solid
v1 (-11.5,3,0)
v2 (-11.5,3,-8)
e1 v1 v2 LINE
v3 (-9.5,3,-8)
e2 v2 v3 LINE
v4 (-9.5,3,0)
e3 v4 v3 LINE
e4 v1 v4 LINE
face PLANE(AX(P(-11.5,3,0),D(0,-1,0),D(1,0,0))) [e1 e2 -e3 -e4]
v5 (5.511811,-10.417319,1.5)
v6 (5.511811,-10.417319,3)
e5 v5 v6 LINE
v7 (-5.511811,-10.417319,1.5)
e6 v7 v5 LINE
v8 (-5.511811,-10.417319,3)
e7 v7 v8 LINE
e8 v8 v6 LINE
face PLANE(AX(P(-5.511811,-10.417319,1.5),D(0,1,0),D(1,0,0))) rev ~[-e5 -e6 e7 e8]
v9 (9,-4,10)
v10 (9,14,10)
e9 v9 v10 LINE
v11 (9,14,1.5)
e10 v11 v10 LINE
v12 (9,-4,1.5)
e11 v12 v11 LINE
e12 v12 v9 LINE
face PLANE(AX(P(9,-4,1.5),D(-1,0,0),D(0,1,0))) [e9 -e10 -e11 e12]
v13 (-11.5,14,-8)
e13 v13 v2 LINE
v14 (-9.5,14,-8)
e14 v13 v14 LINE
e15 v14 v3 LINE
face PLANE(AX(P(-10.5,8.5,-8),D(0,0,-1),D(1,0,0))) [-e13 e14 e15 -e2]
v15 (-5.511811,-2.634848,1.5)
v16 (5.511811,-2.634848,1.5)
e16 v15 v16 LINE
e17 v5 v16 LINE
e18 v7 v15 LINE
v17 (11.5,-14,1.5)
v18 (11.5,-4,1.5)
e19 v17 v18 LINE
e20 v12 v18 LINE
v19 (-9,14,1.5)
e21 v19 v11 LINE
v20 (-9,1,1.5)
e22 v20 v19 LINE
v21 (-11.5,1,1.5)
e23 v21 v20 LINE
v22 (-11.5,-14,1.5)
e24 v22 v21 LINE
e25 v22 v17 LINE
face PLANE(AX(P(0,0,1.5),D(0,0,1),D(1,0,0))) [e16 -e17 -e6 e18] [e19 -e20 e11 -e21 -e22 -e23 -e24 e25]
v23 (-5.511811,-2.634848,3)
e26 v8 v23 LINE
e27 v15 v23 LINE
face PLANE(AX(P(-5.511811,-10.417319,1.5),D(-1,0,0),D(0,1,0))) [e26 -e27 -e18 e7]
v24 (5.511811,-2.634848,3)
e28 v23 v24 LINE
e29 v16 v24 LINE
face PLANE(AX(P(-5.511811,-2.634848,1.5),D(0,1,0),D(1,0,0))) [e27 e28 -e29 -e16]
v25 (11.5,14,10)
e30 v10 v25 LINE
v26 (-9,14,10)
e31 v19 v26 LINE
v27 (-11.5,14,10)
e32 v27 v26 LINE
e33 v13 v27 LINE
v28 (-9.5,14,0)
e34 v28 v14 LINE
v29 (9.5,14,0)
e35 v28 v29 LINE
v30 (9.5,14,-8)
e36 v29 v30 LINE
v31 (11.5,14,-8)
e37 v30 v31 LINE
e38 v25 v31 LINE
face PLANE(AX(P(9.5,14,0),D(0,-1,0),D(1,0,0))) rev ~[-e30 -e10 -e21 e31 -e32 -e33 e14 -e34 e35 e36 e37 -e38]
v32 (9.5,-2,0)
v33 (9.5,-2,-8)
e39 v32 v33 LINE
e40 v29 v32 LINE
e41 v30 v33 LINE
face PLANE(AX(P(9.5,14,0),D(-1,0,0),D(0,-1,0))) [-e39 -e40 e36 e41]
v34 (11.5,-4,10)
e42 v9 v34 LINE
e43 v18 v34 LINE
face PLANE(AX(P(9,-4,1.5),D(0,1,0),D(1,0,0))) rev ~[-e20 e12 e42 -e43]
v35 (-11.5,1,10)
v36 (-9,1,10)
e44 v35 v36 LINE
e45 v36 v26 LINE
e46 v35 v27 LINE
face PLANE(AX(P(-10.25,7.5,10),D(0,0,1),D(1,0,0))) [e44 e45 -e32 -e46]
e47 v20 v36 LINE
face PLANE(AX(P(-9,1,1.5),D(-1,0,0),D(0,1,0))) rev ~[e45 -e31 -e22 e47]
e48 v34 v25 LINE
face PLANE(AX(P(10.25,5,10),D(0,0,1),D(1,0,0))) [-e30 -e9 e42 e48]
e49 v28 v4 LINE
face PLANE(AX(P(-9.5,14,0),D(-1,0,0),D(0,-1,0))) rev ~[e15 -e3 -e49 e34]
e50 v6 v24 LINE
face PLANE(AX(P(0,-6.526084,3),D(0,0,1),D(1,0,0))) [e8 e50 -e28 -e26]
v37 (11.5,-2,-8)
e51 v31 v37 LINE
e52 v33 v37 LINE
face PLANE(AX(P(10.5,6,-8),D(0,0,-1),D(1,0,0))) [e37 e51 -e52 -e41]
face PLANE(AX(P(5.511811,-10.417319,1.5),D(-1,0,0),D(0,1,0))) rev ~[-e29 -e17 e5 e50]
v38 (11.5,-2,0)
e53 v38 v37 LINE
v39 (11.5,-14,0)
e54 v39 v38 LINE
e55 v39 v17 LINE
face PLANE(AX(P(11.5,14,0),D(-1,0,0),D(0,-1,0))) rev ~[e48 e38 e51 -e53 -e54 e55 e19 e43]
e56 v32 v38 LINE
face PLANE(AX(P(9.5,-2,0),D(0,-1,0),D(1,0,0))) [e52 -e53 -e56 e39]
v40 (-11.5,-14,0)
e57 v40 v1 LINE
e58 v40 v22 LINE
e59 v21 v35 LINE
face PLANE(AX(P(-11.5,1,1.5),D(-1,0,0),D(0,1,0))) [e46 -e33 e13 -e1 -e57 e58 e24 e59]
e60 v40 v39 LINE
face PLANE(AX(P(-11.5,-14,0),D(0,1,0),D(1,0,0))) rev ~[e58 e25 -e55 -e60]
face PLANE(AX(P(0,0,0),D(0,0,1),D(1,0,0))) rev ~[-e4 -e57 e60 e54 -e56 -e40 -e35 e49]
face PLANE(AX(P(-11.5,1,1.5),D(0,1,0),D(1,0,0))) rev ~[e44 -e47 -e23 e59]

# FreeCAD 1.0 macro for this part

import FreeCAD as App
import Part
import Sketcher

V = App.Vector
Q = App.Units.Quantity

doc = App.newDocument("Part")
params = doc.addObject("Spreadsheet::Sheet", "Params")
for row, (alias, value) in enumerate([
    ("sketch1_width", "23 mm"),
    ("sketch1_height", "28 mm"),
    ("pad1_length", "1.5 mm"),
    ("sketch2_height", "13 mm"),
    ("sketch2_height2", "18 mm"),
    ("sketch2_width", "2.5 mm"),
    ("pad2_length", "8.5 mm"),
    ("sketch3_width", "2 mm"),
    ("sketch3_height", "16 mm"),
    ("sketch3_height2", "11 mm"),
    ("pad3_length", "8 mm"),
    ("pad4_length", "1.5 mm"),
], start=1):
    params.set(f"A{row}", alias)
    params.set(f"B{row}", "=" + value)
    params.setAlias(f"B{row}", alias)

body = doc.addObject("PartDesign::Body", "Body")

sketch1 = body.newObject("Sketcher::SketchObject", "Sketch")
sketch1.AttachmentSupport = (doc.getObject("XY_Plane"), [""])
sketch1.MapMode = "FlatFace"
sketch1.addGeometry([
    Part.LineSegment(V(-12, 14, 0), V(-12, -14, 0)),
    Part.LineSegment(V(-12, -14, 0), V(12, -14, 0)),
    Part.LineSegment(V(12, -14, 0), V(12, 14, 0)),
    Part.LineSegment(V(12, 14, 0), V(-12, 14, 0)),
], False)
sketch1.addConstraint([
    Sketcher.Constraint("Coincident", 0, 2, 1, 1),
    Sketcher.Constraint("Coincident", 1, 2, 2, 1),
    Sketcher.Constraint("Coincident", 2, 2, 3, 1),
    Sketcher.Constraint("Coincident", 3, 2, 0, 1),
    Sketcher.Constraint("Vertical", 0),
    Sketcher.Constraint("Horizontal", 1),
    Sketcher.Constraint("Vertical", 2),
    Sketcher.Constraint("Horizontal", 3),
    Sketcher.Constraint("Symmetric", 0, 2, 2, 2, -1, 1),
    Sketcher.Constraint("DistanceX", 1, 1, 1, 2, Q("23 mm")),
    Sketcher.Constraint("DistanceY", 0, 2, 0, 1, Q("28 mm")),
])
sketch1.setExpression("Constraints[9]", "Params.sketch1_width")
sketch1.setExpression("Constraints[10]", "Params.sketch1_height")
pad1 = body.newObject("PartDesign::Pad", "Pad")
pad1.Profile = sketch1
pad1.setExpression("Length", "Params.pad1_length")

sketch2 = body.newObject("Sketcher::SketchObject", "Sketch001")
sketch2.AttachmentSupport = (doc.getObject("XY_Plane"), [""])
sketch2.MapMode = "FlatFace"
sketch2.AttachmentOffset = App.Placement(V(0, 0, 1.5), App.Rotation())
sketch2.addGeometry([
    Part.LineSegment(V(-11.5, 14, 0), V(-11.5, 1, 0)),
    Part.LineSegment(V(-11.5, 1, 0), V(-9, 1, 0)),
    Part.LineSegment(V(-9, 1, 0), V(-9, 14, 0)),
    Part.LineSegment(V(-9, 14, 0), V(-11.5, 14, 0)),
    Part.LineSegment(V(9, 14, 0), V(9, -4, 0)),
    Part.LineSegment(V(9, -4, 0), V(11.5, -4, 0)),
    Part.LineSegment(V(11.5, -4, 0), V(11.5, 14, 0)),
    Part.LineSegment(V(11.5, 14, 0), V(9, 14, 0)),
], False)
sketch2.addConstraint([
    Sketcher.Constraint("Coincident", 0, 2, 1, 1),
    Sketcher.Constraint("Coincident", 1, 2, 2, 1),
    Sketcher.Constraint("Coincident", 2, 2, 3, 1),
    Sketcher.Constraint("Coincident", 3, 2, 0, 1),
    Sketcher.Constraint("Coincident", 4, 2, 5, 1),
    Sketcher.Constraint("Coincident", 5, 2, 6, 1),
    Sketcher.Constraint("Coincident", 6, 2, 7, 1),
    Sketcher.Constraint("Coincident", 7, 2, 4, 1),
    Sketcher.Constraint("Vertical", 0),
    Sketcher.Constraint("Horizontal", 1),
    Sketcher.Constraint("Vertical", 2),
    Sketcher.Constraint("Horizontal", 3),
    Sketcher.Constraint("Vertical", 4),
    Sketcher.Constraint("Horizontal", 5),
    Sketcher.Constraint("Vertical", 6),
    Sketcher.Constraint("Horizontal", 7),
    Sketcher.Constraint("Symmetric", 3, 2, 6, 2, -2),
    Sketcher.Constraint("Equal", 3, 5),
    Sketcher.Constraint("DistanceY", 0, 2, 0, 1, Q("13 mm")),
    Sketcher.Constraint("DistanceY", 4, 2, 4, 1, Q("18 mm")),
    Sketcher.Constraint("DistanceX", 1, 1, 1, 2, Q("2.5 mm")),
    Sketcher.Constraint("DistanceY", -1, 1, 0, 2, Q("1 mm")),
    Sketcher.Constraint("DistanceX", 1, 2, -1, 1, Q("9 mm")),
])
sketch2.setExpression("Constraints[18]", "Params.sketch2_height")
sketch2.setExpression("Constraints[19]", "Params.sketch2_height2")
sketch2.setExpression("Constraints[20]", "Params.sketch2_width")
pad2 = body.newObject("PartDesign::Pad", "Pad001")
pad2.Profile = sketch2
pad2.setExpression("Length", "Params.pad2_length")

sketch3 = body.newObject("Sketcher::SketchObject", "Sketch002")
sketch3.AttachmentSupport = (doc.getObject("XY_Plane"), [""])
sketch3.MapMode = "FlatFace"
sketch3.addGeometry([
    Part.LineSegment(V(9.5, -2, 0), V(9.5, 14, 0)),
    Part.LineSegment(V(9.5, 14, 0), V(11.5, 14, 0)),
    Part.LineSegment(V(11.5, 14, 0), V(11.5, -2, 0)),
    Part.LineSegment(V(11.5, -2, 0), V(9.5, -2, 0)),
    Part.LineSegment(V(-11.5, 3, 0), V(-11.5, 14, 0)),
    Part.LineSegment(V(-11.5, 14, 0), V(-9.5, 14, 0)),
    Part.LineSegment(V(-9.5, 14, 0), V(-9.5, 3, 0)),
    Part.LineSegment(V(-9.5, 3, 0), V(-11.5, 3, 0)),
], False)
sketch3.addConstraint([
    Sketcher.Constraint("Coincident", 0, 2, 1, 1),
    Sketcher.Constraint("Coincident", 1, 2, 2, 1),
    Sketcher.Constraint("Coincident", 2, 2, 3, 1),
    Sketcher.Constraint("Coincident", 3, 2, 0, 1),
    Sketcher.Constraint("Coincident", 4, 2, 5, 1),
    Sketcher.Constraint("Coincident", 5, 2, 6, 1),
    Sketcher.Constraint("Coincident", 6, 2, 7, 1),
    Sketcher.Constraint("Coincident", 7, 2, 4, 1),
    Sketcher.Constraint("Vertical", 0),
    Sketcher.Constraint("Horizontal", 1),
    Sketcher.Constraint("Vertical", 2),
    Sketcher.Constraint("Horizontal", 3),
    Sketcher.Constraint("Vertical", 4),
    Sketcher.Constraint("Horizontal", 5),
    Sketcher.Constraint("Vertical", 6),
    Sketcher.Constraint("Horizontal", 7),
    Sketcher.Constraint("Symmetric", 1, 2, 4, 2, -2),
    Sketcher.Constraint("Equal", 3, 5),
    Sketcher.Constraint("DistanceX", 1, 1, 1, 2, Q("2 mm")),
    Sketcher.Constraint("DistanceY", 0, 1, 0, 2, Q("16 mm")),
    Sketcher.Constraint("DistanceY", 4, 1, 4, 2, Q("11 mm")),
    Sketcher.Constraint("DistanceY", -1, 1, 0, 2, Q("14 mm")),
    Sketcher.Constraint("DistanceX", 4, 2, 0, 2, Q("21 mm")),
])
sketch3.setExpression("Constraints[18]", "Params.sketch3_width")
sketch3.setExpression("Constraints[19]", "Params.sketch3_height")
sketch3.setExpression("Constraints[20]", "Params.sketch3_height2")
pad3 = body.newObject("PartDesign::Pad", "Pad002")
pad3.Profile = sketch3
pad3.setExpression("Length", "Params.pad3_length")
pad3.Reversed = True

sketch4 = body.newObject("Sketcher::SketchObject", "Sketch003")
sketch4.AttachmentSupport = (doc.getObject("XY_Plane"), [""])
sketch4.MapMode = "FlatFace"
sketch4.AttachmentOffset = App.Placement(V(0, 0, 1.5), App.Rotation())
sketch4.addGeometry([
    Part.LineSegment(V(-6, -3, 0), V(-6, -10, 0)),
    Part.LineSegment(V(-6, -10, 0), V(6, -10, 0)),
    Part.LineSegment(V(6, -10, 0), V(6, -3, 0)),
    Part.LineSegment(V(6, -3, 0), V(-6, -3, 0)),
], False)
sketch4.addConstraint([
    Sketcher.Constraint("Coincident", 0, 2, 1, 1),
    Sketcher.Constraint("Coincident", 1, 2, 2, 1),
    Sketcher.Constraint("Coincident", 2, 2, 3, 1),
    Sketcher.Constraint("Coincident", 3, 2, 0, 1),
    Sketcher.Constraint("Vertical", 0),
    Sketcher.Constraint("Horizontal", 1),
    Sketcher.Constraint("Vertical", 2),
    Sketcher.Constraint("Horizontal", 3),
    Sketcher.Constraint("DistanceY", 0, 2, 0, 1, Q("7.782471 mm")),
    Sketcher.Constraint("DistanceX", 1, 1, 1, 2, Q("11.023622 mm")),
    Sketcher.Constraint("DistanceX", 0, 2, -1, 1, Q("5.511811 mm")),
    Sketcher.Constraint("DistanceY", 0, 2, -1, 1, Q("10.417319 mm")),
])
pad4 = body.newObject("PartDesign::Pad", "Pad003")
pad4.Profile = sketch4
pad4.setExpression("Length", "Params.pad4_length")

doc.recompute()
